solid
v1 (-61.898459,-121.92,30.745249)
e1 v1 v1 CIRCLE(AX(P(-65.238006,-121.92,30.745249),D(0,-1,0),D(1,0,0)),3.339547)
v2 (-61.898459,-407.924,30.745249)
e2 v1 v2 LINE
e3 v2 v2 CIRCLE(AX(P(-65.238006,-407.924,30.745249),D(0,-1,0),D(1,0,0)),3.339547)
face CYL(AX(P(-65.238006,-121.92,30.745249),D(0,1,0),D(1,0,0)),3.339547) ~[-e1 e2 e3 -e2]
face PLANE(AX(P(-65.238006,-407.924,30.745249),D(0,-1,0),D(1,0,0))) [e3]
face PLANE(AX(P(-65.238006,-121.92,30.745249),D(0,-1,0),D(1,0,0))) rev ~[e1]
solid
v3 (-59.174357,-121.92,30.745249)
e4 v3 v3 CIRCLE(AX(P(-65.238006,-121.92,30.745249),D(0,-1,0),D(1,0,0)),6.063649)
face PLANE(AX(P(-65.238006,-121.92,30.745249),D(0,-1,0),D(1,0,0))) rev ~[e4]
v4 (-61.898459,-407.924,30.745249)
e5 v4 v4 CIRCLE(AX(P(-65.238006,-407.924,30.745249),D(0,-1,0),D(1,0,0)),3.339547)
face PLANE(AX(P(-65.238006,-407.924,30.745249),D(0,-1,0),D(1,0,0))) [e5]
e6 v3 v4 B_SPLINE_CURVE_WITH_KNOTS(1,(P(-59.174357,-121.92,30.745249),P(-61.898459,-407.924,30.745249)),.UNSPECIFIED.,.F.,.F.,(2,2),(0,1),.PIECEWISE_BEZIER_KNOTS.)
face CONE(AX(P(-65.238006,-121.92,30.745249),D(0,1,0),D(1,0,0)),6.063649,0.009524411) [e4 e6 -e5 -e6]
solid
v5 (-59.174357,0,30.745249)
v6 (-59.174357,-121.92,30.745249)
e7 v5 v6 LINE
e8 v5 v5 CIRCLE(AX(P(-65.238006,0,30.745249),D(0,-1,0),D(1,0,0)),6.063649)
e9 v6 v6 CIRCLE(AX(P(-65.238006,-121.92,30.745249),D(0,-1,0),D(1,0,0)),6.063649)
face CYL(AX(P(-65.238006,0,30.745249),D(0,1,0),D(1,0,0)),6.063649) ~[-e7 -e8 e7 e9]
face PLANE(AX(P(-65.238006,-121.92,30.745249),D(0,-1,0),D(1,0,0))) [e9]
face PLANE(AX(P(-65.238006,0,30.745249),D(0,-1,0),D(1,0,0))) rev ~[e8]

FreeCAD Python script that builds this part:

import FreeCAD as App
import Part
import Sketcher
Q = App.Units.Quantity

doc = App.newDocument("Part")
params = doc.addObject("Spreadsheet::Sheet", "Params")
for row, (alias, value) in enumerate([
    ("pad1_length", "4.8 in"),
    ("pad2_length", "11.26 in"),
], start=1):
    params.set(f"A{row}", alias)
    params.set(f"B{row}", "=" + value)
    params.setAlias(f"B{row}", alias)

body = doc.addObject("PartDesign::Body", "Body")

# Sketch on XZ plane
sketch1 = body.newObject("Sketcher::SketchObject", "Sketch")
sketch1.AttachmentSupport = (doc.getObject("XZ_Plane"), [""])
sketch1.MapMode = "FlatFace"
sketch1.addGeometry(Part.Circle(App.Vector(-65, 31, 0), App.Vector(0, 0, 1), 6), False)
sketch1.addConstraint(Sketcher.Constraint("Diameter", 0, Q("12.127298 mm")))
sketch1.addConstraint(Sketcher.Constraint("DistanceY", -1, 1, 0, 3, Q("30.745249 mm")))
sketch1.addConstraint(Sketcher.Constraint("DistanceX", 0, 3, -1, 1, Q("65.238006 mm")))
pad1 = body.newObject("PartDesign::Pad", "Pad")
pad1.Profile = sketch1
pad1.setExpression("Length", "Params.pad1_length")
body2 = doc.addObject("PartDesign::Body", "Body001")

# Sketch on XZ plane
sketch2 = body2.newObject("Sketcher::SketchObject", "Sketch001")
sketch2.AttachmentSupport = (doc.getObject("XZ_Plane001"), [""])
sketch2.MapMode = "FlatFace"
sketch2.AttachmentOffset = App.Placement(App.Vector(0, 0, 4.8 * 25.4), App.Rotation())
sketch2.addGeometry(Part.Circle(App.Vector(-65.2, 30.7, 0), App.Vector(0, 0, 1), 3.3), False)
sketch2.addConstraint(Sketcher.Constraint("Diameter", 0, Q("6.679094 mm")))
sketch2.addConstraint(Sketcher.Constraint("DistanceY", -1, 1, 0, 3, Q("30.745249 mm")))
sketch2.addConstraint(Sketcher.Constraint("DistanceX", 0, 3, -1, 1, Q("65.238006 mm")))
pad2 = body2.newObject("PartDesign::Pad", "Pad001")
pad2.Profile = sketch2
pad2.setExpression("Length", "Params.pad2_length")
body3 = doc.addObject("PartDesign::Body", "Body002")

# Sketch on XZ plane
sketch3 = body3.newObject("Sketcher::SketchObject", "Sketch002")
sketch3.AttachmentSupport = (doc.getObject("XZ_Plane002"), [""])
sketch3.MapMode = "FlatFace"
sketch3.AttachmentOffset = App.Placement(App.Vector(0, 0, 4.8 * 25.4), App.Rotation())
sketch3.addGeometry(Part.Circle(App.Vector(-65, 31, 0), App.Vector(0, 0, 1), 6), False)
sketch3.addConstraint(Sketcher.Constraint("Diameter", 0, Q("12.127298 mm")))
sketch3.addConstraint(Sketcher.Constraint("DistanceY", -1, 1, 0, 3, Q("30.745249 mm")))
sketch3.addConstraint(Sketcher.Constraint("DistanceX", 0, 3, -1, 1, Q("65.238006 mm")))

# Sketch on XZ plane
sketch4 = body3.newObject("Sketcher::SketchObject", "Sketch003")
sketch4.AttachmentSupport = (doc.getObject("XZ_Plane002"), [""])
sketch4.MapMode = "FlatFace"
sketch4.AttachmentOffset = App.Placement(App.Vector(0, 0, 16.06 * 25.4), App.Rotation())
sketch4.addGeometry(Part.Circle(App.Vector(-65.2, 30.7, 0), App.Vector(0, 0, 1), 3.3), False)
sketch4.addConstraint(Sketcher.Constraint("Diameter", 0, Q("6.679094 mm")))
sketch4.addConstraint(Sketcher.Constraint("DistanceY", -1, 1, 0, 3, Q("30.745249 mm")))
sketch4.addConstraint(Sketcher.Constraint("DistanceX", 0, 3, -1, 1, Q("65.238006 mm")))

additiveloft = body3.newObject("PartDesign::AdditiveLoft", "AdditiveLoft")
additiveloft.Profile = sketch3
additiveloft.Sections = [sketch4]

doc.recompute()
